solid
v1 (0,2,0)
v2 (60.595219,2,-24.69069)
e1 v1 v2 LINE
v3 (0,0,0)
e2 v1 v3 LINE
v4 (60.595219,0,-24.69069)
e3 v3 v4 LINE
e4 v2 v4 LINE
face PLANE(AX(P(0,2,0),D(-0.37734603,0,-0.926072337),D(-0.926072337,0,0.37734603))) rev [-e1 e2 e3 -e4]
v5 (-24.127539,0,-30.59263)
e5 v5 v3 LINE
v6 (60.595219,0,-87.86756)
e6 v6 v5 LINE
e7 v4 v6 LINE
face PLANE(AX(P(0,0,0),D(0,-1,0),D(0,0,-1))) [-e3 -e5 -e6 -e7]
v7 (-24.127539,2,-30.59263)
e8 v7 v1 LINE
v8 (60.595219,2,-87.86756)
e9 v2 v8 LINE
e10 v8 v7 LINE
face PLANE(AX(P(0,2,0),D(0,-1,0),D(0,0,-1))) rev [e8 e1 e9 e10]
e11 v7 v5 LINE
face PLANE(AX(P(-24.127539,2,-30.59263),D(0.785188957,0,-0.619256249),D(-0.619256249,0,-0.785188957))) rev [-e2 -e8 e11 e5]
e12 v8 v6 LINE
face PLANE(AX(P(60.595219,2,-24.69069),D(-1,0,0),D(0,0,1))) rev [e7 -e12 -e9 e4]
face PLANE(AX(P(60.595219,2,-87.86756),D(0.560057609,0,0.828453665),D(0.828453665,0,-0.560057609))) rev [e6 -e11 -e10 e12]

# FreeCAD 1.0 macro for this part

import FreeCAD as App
import Part
import Sketcher


def add_polygon(sketch, points):
    """Adds a closed chain of lines whose ends are joined by coincident constraints."""
    first, n = sketch.GeometryCount, len(points)
    for a, b in zip(points, points[1:] + points[:1]):
        sketch.addGeometry(Part.LineSegment(App.Vector(*a, 0), App.Vector(*b, 0)), False)
    for i in range(n):
        sketch.addConstraint(Sketcher.Constraint("Coincident", first + i, 2, first + (i + 1) % n, 1))

doc = App.newDocument("Part")
body = doc.addObject("PartDesign::Body", "Body")

# Sketch on XZ plane
sketch1 = body.newObject("Sketcher::SketchObject", "Sketch")
sketch1.AttachmentSupport = (doc.getObject("XZ_Plane"), [""])
sketch1.MapMode = "FlatFace"
add_polygon(sketch1, [(60.595219, -87.86756), (-24.127539, -30.59263), (0, 0), (60.595219, -24.69069)])  # lines 0-3
sketch1.addConstraint([
    Sketcher.Constraint("Vertical", 3),
    Sketcher.Constraint("Coincident", 1, 2, -1, 1),
    Sketcher.Constraint("DistanceY", 3, 2, 3, 1, 63.17687),
    Sketcher.Constraint("Distance", 0, 102.266139),
    Sketcher.Constraint("Distance", 2, 65.43249),
    Sketcher.Constraint("DistanceX", 0, 2, -1, 1, 24.127539),
    Sketcher.Constraint("DistanceY", 0, 2, -1, 1, 30.59263),
])
pad1 = body.newObject("PartDesign::Pad", "Pad")
pad1.Profile = sketch1
pad1.Length = 2
pad1.Reversed = True

doc.recompute()
